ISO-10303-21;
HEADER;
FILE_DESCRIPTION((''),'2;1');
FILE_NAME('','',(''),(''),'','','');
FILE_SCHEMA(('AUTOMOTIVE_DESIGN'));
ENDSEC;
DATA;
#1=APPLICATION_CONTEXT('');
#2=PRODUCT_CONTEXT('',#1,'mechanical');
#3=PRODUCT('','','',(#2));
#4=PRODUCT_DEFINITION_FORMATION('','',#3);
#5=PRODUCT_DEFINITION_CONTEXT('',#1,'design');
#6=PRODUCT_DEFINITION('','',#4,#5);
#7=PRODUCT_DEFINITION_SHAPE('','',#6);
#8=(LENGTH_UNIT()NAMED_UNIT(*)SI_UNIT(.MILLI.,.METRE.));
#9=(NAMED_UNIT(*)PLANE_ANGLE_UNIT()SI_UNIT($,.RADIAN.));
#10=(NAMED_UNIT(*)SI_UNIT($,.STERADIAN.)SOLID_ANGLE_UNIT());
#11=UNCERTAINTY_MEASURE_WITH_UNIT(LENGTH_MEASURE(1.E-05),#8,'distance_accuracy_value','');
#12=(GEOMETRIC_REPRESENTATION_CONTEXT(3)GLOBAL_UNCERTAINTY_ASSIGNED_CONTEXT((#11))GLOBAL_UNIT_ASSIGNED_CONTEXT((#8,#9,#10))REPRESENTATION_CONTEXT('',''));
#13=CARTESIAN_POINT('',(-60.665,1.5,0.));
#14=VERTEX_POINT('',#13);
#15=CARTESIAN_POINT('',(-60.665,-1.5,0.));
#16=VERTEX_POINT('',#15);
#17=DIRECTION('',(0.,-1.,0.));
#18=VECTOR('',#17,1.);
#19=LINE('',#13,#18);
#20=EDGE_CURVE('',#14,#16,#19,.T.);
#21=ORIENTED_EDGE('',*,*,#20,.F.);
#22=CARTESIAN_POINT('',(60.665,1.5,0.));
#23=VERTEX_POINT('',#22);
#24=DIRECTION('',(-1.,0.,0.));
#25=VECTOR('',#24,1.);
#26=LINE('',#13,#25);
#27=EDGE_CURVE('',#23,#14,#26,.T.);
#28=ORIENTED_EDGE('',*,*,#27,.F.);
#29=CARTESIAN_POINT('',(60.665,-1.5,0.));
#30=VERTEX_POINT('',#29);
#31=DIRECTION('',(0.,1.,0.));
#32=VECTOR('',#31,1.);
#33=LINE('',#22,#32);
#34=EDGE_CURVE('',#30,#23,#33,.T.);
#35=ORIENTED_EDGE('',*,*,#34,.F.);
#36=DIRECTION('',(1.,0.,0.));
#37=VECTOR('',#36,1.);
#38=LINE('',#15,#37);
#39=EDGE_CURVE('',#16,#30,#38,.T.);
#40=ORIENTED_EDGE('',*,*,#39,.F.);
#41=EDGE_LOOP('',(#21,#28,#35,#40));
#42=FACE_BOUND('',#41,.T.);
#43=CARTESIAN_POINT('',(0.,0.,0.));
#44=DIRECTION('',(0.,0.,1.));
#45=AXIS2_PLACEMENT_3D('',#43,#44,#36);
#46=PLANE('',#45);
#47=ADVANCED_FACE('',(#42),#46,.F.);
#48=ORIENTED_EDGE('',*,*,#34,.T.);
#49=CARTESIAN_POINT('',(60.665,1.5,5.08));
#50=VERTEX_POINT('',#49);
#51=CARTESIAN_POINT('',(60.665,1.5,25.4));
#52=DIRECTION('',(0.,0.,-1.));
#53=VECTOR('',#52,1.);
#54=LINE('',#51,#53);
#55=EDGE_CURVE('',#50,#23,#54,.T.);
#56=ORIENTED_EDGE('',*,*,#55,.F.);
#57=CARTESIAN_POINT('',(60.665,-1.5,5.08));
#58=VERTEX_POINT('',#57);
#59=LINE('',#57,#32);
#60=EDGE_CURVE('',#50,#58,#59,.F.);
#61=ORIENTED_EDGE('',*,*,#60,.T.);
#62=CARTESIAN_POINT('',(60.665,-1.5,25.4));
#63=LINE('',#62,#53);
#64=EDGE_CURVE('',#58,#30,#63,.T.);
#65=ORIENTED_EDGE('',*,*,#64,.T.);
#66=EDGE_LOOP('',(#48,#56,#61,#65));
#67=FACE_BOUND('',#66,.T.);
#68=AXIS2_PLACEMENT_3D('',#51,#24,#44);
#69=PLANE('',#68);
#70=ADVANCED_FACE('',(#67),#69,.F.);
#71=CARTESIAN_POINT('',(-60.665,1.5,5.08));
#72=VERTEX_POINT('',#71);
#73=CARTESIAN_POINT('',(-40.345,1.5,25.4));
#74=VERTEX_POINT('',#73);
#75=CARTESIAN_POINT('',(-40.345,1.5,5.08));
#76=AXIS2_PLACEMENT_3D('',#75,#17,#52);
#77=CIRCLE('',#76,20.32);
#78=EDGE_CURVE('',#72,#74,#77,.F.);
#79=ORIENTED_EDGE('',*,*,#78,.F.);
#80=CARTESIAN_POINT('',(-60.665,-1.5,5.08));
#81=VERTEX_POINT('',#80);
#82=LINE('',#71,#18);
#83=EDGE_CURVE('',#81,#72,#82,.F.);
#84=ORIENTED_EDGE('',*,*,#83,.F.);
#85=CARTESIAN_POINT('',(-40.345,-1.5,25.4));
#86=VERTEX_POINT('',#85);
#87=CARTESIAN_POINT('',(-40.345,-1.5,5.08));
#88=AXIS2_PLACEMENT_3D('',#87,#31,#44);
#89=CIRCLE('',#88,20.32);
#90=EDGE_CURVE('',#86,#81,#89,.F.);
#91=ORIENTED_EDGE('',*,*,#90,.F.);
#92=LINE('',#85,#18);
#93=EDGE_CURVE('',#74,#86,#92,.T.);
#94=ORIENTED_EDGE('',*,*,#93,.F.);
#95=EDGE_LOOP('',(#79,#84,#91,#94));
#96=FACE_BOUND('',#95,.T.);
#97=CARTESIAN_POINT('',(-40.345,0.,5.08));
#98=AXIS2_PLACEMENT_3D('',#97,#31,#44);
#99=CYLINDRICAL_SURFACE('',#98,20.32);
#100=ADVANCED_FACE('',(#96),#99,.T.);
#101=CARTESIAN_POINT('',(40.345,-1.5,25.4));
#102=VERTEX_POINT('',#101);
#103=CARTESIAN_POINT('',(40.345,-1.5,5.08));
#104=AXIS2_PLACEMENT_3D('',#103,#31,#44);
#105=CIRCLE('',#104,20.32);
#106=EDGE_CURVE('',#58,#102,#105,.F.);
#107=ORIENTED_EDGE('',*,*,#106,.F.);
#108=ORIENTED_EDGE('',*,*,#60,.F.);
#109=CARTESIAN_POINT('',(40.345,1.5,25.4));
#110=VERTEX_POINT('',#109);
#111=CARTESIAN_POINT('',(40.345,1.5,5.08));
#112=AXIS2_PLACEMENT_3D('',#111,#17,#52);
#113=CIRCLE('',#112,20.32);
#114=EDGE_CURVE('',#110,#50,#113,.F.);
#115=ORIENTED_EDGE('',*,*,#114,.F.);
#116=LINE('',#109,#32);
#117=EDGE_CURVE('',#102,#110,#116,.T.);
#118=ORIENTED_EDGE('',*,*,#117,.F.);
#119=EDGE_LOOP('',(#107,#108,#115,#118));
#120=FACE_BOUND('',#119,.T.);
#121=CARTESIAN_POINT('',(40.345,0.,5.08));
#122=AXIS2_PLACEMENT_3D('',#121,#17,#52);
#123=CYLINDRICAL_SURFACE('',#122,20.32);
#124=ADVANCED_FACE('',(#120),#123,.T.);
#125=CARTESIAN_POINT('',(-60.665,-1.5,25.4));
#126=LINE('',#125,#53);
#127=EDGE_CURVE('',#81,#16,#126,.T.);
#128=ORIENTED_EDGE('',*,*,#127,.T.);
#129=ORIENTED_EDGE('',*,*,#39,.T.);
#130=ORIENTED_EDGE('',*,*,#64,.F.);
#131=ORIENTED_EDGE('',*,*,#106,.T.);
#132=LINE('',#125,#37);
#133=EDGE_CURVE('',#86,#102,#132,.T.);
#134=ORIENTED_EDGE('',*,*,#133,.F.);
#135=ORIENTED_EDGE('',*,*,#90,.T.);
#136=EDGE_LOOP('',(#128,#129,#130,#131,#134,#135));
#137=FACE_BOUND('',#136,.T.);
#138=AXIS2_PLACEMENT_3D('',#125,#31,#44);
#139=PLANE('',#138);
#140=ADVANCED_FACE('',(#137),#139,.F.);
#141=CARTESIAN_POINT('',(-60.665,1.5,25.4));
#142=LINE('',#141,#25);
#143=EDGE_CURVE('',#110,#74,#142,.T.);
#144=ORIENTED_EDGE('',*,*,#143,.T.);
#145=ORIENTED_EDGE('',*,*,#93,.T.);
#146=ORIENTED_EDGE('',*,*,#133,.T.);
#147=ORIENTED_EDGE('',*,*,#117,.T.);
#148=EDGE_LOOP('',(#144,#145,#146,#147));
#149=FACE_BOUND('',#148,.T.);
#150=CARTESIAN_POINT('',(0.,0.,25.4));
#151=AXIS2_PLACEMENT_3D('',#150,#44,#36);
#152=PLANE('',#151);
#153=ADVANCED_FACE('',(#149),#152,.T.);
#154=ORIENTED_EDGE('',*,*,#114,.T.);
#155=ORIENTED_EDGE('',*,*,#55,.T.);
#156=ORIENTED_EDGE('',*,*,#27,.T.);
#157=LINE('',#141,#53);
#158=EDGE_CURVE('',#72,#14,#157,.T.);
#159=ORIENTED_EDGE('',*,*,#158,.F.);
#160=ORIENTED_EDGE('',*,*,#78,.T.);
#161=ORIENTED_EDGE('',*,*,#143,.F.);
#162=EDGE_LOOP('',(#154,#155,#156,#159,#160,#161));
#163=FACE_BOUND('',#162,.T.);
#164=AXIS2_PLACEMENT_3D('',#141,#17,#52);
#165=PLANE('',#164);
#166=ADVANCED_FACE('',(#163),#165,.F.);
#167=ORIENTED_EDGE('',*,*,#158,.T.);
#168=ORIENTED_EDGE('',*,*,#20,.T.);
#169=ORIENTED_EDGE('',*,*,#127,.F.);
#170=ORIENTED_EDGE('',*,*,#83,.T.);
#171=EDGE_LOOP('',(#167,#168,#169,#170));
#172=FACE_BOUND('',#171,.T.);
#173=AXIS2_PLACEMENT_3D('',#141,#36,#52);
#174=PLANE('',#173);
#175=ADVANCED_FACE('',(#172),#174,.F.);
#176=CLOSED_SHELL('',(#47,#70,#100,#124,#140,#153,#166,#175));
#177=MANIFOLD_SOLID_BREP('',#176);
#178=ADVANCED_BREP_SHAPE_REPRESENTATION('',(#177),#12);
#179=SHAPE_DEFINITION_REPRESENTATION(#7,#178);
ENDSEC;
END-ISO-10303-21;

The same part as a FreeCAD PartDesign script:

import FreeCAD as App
import Part
import Sketcher

V = App.Vector
Q = App.Units.Quantity


def edges_at(feature, points):
    """Names of the edges that pass closest to the given points."""
    edges = feature.Shape.Edges
    near = lambda p: min(range(len(edges)), key=lambda i: edges[i].distToShape(Part.Vertex(*p))[0])
    return sorted({f"Edge{near(p) + 1}" for p in points})

doc = App.newDocument("Part")
body = doc.addObject("PartDesign::Body", "Body")

sketch1 = body.newObject("Sketcher::SketchObject", "Sketch")
sketch1.AttachmentSupport = (doc.getObject("XY_Plane"), [""])
sketch1.MapMode = "FlatFace"
sketch1.addGeometry([
    Part.LineSegment(V(-60.7, 1.5, 0), V(-60.7, -1.5, 0)),
    Part.LineSegment(V(-60.7, -1.5, 0), V(60.7, -1.5, 0)),
    Part.LineSegment(V(60.7, -1.5, 0), V(60.7, 1.5, 0)),
    Part.LineSegment(V(60.7, 1.5, 0), V(-60.7, 1.5, 0)),
], False)
sketch1.addConstraint([
    Sketcher.Constraint("Coincident", 0, 2, 1, 1),
    Sketcher.Constraint("Coincident", 1, 2, 2, 1),
    Sketcher.Constraint("Coincident", 2, 2, 3, 1),
    Sketcher.Constraint("Coincident", 3, 2, 0, 1),
    Sketcher.Constraint("Vertical", 0),
    Sketcher.Constraint("Horizontal", 1),
    Sketcher.Constraint("Vertical", 2),
    Sketcher.Constraint("Horizontal", 3),
    Sketcher.Constraint("Symmetric", 0, 2, 2, 2, -1, 1),
    Sketcher.Constraint("DistanceX", 1, 1, 1, 2, Q("121.33 mm")),
    Sketcher.Constraint("DistanceY", 0, 2, 0, 1, Q("3 mm")),
])
pad1 = body.newObject("PartDesign::Pad", "Pad")
pad1.Profile = sketch1
pad1.Length = Q("1 in")
doc.recompute()

fillet = body.newObject("PartDesign::Fillet", "Fillet")
fillet.Base = (pad1, edges_at(pad1, [(-60.665, 0, 25.4), (60.665, 0, 25.4)]))
fillet.Radius = Q("0.8 in")

doc.recompute()
